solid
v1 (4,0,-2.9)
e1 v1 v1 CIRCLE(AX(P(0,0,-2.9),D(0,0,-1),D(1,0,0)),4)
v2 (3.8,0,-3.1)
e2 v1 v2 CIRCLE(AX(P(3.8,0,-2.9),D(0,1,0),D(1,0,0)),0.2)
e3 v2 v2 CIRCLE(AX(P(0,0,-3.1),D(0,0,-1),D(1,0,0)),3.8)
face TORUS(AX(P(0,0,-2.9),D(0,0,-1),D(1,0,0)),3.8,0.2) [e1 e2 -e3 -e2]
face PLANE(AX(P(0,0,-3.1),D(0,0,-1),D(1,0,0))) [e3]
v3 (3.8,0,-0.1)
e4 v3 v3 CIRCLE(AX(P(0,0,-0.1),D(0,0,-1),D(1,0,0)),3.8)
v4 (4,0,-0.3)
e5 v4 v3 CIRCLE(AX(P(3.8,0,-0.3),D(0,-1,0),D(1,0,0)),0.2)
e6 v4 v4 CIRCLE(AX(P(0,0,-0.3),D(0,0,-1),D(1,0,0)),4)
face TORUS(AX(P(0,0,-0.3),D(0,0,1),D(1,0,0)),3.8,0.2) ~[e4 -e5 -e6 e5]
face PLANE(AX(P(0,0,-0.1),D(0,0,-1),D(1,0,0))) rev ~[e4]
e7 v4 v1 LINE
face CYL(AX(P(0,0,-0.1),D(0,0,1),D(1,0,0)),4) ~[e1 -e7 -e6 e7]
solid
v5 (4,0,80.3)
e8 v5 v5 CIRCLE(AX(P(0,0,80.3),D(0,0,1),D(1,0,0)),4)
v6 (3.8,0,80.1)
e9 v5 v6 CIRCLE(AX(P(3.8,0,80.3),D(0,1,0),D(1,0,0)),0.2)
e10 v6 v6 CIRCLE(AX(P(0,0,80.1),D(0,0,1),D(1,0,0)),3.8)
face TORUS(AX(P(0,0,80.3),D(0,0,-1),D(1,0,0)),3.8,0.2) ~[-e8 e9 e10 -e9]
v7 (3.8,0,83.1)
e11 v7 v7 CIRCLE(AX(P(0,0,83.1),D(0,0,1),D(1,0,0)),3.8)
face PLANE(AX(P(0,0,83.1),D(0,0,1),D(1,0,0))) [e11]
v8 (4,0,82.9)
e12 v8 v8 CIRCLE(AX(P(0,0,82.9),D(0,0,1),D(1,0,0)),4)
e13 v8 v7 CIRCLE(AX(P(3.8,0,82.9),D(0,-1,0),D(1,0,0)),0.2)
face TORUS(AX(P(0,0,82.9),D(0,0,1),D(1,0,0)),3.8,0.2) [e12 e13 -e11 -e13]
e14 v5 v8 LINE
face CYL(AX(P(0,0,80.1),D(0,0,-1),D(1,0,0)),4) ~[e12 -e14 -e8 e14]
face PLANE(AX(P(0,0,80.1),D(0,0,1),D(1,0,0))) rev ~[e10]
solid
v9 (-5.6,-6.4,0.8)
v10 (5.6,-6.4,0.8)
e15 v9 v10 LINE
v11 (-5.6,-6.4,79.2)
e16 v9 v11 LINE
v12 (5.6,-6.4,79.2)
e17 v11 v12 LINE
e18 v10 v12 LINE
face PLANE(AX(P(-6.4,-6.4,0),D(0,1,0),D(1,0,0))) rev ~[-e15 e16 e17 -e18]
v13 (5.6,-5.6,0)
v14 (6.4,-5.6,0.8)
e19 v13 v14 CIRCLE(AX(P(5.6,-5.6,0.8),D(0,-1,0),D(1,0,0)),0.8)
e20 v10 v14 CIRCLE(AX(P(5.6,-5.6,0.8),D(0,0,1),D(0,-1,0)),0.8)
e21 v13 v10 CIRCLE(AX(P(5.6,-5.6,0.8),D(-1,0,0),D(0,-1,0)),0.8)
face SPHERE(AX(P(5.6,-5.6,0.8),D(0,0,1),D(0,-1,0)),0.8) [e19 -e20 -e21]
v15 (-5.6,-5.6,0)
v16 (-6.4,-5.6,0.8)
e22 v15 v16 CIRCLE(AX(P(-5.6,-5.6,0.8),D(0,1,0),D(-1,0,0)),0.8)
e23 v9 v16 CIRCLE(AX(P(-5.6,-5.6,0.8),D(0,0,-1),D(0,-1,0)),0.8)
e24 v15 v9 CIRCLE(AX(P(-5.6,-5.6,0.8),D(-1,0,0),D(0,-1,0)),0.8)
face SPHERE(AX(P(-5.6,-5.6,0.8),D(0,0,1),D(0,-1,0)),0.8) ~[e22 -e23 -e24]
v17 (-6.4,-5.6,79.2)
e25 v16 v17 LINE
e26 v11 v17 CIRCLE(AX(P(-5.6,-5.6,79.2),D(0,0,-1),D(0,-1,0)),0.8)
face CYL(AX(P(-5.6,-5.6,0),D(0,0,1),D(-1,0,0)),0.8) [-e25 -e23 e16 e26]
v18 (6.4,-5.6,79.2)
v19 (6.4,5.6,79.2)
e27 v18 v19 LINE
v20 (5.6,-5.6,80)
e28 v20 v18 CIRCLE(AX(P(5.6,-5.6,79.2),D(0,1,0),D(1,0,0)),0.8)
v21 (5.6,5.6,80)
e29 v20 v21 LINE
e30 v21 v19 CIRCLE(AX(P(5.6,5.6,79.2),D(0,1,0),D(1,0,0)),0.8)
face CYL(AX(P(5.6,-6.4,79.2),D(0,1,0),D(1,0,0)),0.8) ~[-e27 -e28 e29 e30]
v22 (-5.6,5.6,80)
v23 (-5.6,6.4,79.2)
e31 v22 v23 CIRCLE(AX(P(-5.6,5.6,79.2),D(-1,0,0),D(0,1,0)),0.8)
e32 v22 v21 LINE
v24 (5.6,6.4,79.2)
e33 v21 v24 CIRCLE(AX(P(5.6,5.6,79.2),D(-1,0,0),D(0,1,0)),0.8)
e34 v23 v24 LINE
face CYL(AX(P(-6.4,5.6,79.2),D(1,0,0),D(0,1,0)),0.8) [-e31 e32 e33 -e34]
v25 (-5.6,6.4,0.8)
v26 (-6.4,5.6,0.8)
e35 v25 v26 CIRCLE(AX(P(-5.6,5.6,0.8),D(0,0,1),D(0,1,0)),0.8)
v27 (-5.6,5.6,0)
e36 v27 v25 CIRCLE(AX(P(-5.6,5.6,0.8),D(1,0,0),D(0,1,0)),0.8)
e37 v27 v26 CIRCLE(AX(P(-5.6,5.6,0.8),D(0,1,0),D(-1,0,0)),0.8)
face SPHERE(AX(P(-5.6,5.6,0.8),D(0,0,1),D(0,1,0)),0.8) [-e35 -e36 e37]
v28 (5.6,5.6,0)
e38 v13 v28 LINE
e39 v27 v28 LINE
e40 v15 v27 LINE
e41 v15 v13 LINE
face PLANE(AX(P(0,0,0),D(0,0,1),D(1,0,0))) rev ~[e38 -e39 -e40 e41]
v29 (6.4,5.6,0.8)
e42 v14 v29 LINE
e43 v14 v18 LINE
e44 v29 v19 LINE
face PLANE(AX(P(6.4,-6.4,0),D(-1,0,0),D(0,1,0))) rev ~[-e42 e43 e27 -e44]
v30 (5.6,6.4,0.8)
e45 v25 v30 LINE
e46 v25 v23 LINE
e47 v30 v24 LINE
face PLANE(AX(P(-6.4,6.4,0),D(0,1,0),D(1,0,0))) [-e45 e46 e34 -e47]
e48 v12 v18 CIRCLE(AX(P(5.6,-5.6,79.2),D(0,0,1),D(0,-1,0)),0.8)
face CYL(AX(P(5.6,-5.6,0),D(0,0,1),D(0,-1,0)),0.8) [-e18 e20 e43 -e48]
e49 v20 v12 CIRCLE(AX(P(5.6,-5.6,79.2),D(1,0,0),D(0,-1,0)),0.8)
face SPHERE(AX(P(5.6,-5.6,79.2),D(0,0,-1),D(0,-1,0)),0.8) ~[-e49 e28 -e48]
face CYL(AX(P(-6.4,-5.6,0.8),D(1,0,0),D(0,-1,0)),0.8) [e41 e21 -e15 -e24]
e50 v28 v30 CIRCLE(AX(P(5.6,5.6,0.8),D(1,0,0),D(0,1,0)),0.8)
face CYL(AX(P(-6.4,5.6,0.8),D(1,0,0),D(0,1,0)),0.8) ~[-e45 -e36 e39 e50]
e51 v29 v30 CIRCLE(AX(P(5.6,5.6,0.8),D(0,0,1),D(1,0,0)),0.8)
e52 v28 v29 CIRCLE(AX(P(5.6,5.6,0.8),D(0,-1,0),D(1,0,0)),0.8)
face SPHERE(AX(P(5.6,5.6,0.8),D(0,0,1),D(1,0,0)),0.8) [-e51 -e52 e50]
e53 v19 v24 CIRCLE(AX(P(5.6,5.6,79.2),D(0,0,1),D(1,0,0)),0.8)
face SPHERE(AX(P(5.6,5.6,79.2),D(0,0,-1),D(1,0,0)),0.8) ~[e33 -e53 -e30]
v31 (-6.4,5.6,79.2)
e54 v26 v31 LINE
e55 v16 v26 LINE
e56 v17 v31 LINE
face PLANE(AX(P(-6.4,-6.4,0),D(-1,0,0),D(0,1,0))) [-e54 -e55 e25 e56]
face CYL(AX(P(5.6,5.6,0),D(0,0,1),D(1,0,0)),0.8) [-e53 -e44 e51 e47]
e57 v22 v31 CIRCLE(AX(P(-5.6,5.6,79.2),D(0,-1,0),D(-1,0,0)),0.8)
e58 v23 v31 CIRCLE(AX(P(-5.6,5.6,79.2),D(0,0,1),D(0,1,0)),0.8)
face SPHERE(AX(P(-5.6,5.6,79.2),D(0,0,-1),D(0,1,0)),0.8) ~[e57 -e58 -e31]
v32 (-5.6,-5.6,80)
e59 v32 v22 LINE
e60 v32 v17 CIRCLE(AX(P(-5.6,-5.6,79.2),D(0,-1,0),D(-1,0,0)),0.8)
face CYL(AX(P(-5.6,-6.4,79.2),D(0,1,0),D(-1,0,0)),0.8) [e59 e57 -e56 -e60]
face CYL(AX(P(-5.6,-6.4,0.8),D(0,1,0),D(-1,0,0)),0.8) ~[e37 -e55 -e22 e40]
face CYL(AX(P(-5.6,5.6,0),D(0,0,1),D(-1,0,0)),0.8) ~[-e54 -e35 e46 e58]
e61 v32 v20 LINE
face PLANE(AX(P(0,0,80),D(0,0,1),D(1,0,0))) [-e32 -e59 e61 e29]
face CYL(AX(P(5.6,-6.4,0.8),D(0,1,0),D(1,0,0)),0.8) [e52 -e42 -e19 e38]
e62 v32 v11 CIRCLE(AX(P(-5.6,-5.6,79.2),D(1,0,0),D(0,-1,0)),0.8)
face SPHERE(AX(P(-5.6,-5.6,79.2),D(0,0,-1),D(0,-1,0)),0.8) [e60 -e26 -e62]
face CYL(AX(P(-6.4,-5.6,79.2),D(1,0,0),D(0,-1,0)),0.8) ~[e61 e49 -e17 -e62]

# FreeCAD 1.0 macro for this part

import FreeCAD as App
import Part
import Sketcher


def edges_at(feature, points):
    """Names of the edges that pass closest to the given points."""
    edges = feature.Shape.Edges
    near = lambda p: min(range(len(edges)), key=lambda i: edges[i].distToShape(Part.Vertex(*p))[0])
    return sorted({f"Edge{near(p) + 1}" for p in points})

doc = App.newDocument("Part")
params = doc.addObject("Spreadsheet::Sheet", "Params")
for row, (alias, value) in enumerate([
    ("sketch1_width", "12.8 mm"),
    ("pad1_length", "80 mm"),
    ("fillet_radius", "0.8 mm"),
    ("sketch2_diameter", "8 mm"),
    ("pad2_length", "3 mm"),
    ("fillet2_radius", "0.2 mm"),
    ("sketch3_diameter", "8 mm"),
    ("pad3_length", "3 mm"),
    ("fillet3_radius", "0.2 mm"),
], start=1):
    params.set(f"A{row}", alias)
    params.set(f"B{row}", "=" + value)
    params.setAlias(f"B{row}", alias)

body = doc.addObject("PartDesign::Body", "Body")

# Sketch on XY plane
sketch1 = body.newObject("Sketcher::SketchObject", "Sketch")
sketch1.AttachmentSupport = (doc.getObject("XY_Plane"), [""])
sketch1.MapMode = "FlatFace"
sketch1.addGeometry(Part.LineSegment(App.Vector(-6, 6, 0), App.Vector(-6, -6, 0)), False)
sketch1.addGeometry(Part.LineSegment(App.Vector(-6, -6, 0), App.Vector(6, -6, 0)), False)
sketch1.addGeometry(Part.LineSegment(App.Vector(6, -6, 0), App.Vector(6, 6, 0)), False)
sketch1.addGeometry(Part.LineSegment(App.Vector(6, 6, 0), App.Vector(-6, 6, 0)), False)
sketch1.addConstraint(Sketcher.Constraint("Coincident", 0, 2, 1, 1))
sketch1.addConstraint(Sketcher.Constraint("Coincident", 1, 2, 2, 1))
sketch1.addConstraint(Sketcher.Constraint("Coincident", 2, 2, 3, 1))
sketch1.addConstraint(Sketcher.Constraint("Coincident", 3, 2, 0, 1))
sketch1.addConstraint(Sketcher.Constraint("Vertical", 0))
sketch1.addConstraint(Sketcher.Constraint("Horizontal", 1))
sketch1.addConstraint(Sketcher.Constraint("Vertical", 2))
sketch1.addConstraint(Sketcher.Constraint("Horizontal", 3))
sketch1.addConstraint(Sketcher.Constraint("Symmetric", 0, 2, 2, 2, -1, 1))
sketch1.addConstraint(Sketcher.Constraint("Equal", 3, 0))
sketch1.addConstraint(Sketcher.Constraint("DistanceX", 1, 1, 1, 2, 12.8))
sketch1.setExpression("Constraints[10]", "Params.sketch1_width")
pad1 = body.newObject("PartDesign::Pad", "Pad")
pad1.Profile = sketch1
pad1.setExpression("Length", "Params.pad1_length")
doc.recompute()

fillet = body.newObject("PartDesign::Fillet", "Fillet")
fillet.Base = (pad1, ["Edge1"])
fillet.UseAllEdges = True
fillet.setExpression("Radius", "Params.fillet_radius")
body2 = doc.addObject("PartDesign::Body", "Body001")

# Sketch on XY plane
sketch2 = body2.newObject("Sketcher::SketchObject", "Sketch001")
sketch2.AttachmentSupport = (doc.getObject("XY_Plane001"), [""])
sketch2.MapMode = "FlatFace"
sketch2.AttachmentOffset = App.Placement(App.Vector(0, 0, -0.1), App.Rotation())
sketch2.addGeometry(Part.Circle(App.Vector(0, 0, 0), App.Vector(0, 0, 1), 4), False)
sketch2.addConstraint(Sketcher.Constraint("Coincident", 0, 3, -1, 1))
sketch2.addConstraint(Sketcher.Constraint("Diameter", 0, 8.0))
sketch2.setExpression("Constraints[1]", "Params.sketch2_diameter")
pad2 = body2.newObject("PartDesign::Pad", "Pad001")
pad2.Profile = sketch2
pad2.setExpression("Length", "Params.pad2_length")
pad2.Reversed = True
doc.recompute()

fillet2 = body2.newObject("PartDesign::Fillet", "Fillet001")
fillet2.Base = (pad2, edges_at(pad2, [(-4, 0, -3.1), (-4, 0, -0.1)]))
fillet2.setExpression("Radius", "Params.fillet2_radius")
body3 = doc.addObject("PartDesign::Body", "Body002")

# Sketch on XY plane
sketch3 = body3.newObject("Sketcher::SketchObject", "Sketch002")
sketch3.AttachmentSupport = (doc.getObject("XY_Plane002"), [""])
sketch3.MapMode = "FlatFace"
sketch3.AttachmentOffset = App.Placement(App.Vector(0, 0, 80.1), App.Rotation())
sketch3.addGeometry(Part.Circle(App.Vector(0, 0, 0), App.Vector(0, 0, 1), 4), False)
sketch3.addConstraint(Sketcher.Constraint("Coincident", 0, 3, -1, 1))
sketch3.addConstraint(Sketcher.Constraint("Diameter", 0, 8.0))
sketch3.setExpression("Constraints[1]", "Params.sketch3_diameter")
pad3 = body3.newObject("PartDesign::Pad", "Pad002")
pad3.Profile = sketch3
pad3.setExpression("Length", "Params.pad3_length")
doc.recompute()

fillet3 = body3.newObject("PartDesign::Fillet", "Fillet002")
fillet3.Base = (pad3, edges_at(pad3, [(-4, 0, 83.1), (-4, 0, 80.1)]))
fillet3.setExpression("Radius", "Params.fillet3_radius")

doc.recompute()
